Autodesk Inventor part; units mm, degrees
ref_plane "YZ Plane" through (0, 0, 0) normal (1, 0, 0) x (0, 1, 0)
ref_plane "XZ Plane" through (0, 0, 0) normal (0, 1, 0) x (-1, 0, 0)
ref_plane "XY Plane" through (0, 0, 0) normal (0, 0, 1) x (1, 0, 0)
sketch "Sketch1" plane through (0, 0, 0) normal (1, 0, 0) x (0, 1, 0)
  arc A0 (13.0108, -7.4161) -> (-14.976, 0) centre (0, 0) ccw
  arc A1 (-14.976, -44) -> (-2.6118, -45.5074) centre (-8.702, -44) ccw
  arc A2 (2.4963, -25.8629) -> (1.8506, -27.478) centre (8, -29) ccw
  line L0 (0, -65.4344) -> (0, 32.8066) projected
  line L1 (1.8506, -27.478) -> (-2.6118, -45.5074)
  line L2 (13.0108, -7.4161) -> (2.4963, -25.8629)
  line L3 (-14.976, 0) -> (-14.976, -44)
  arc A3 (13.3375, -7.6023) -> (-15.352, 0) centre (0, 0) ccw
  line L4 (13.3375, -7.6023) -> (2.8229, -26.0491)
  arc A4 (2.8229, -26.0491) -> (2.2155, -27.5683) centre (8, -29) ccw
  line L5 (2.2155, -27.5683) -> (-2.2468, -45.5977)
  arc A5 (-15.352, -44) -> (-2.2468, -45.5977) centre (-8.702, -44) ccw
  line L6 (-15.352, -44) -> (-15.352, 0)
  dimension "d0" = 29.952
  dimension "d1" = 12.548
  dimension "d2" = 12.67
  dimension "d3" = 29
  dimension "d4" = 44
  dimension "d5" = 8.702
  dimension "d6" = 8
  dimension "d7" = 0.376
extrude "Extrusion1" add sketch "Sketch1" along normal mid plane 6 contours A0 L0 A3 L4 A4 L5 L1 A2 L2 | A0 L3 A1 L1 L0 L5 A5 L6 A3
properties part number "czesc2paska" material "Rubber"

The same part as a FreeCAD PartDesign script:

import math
import FreeCAD as App
import Part
import Sketcher

V = App.Vector

doc = App.newDocument("Part")
body = doc.addObject("PartDesign::Body", "Body")

sketch1 = body.newObject("Sketcher::SketchObject", "Sketch")
sketch1.AttachmentSupport = (doc.getObject("YZ_Plane"), [""])
sketch1.MapMode = "FlatFace"
sketch1.addGeometry([
    Part.ArcOfCircle(Part.Circle(V(0, 0, 0), V(0, 0, 1), 15.351999), math.radians(-29.682897), math.radians(180)),
    Part.LineSegment(V(-15.352, 0, 0), V(-15.352, -44, 0)),
    Part.ArcOfCircle(Part.Circle(V(-8.702, -44, 0), V(0, 0, 1), 6.65), math.radians(180), math.radians(346.098331)),
    Part.LineSegment(V(-2.2468, -45.5977, 0), V(2.2155, -27.5683, 0)),
    Part.ArcOfCircle(Part.Circle(V(8, -29, 0), V(0, 0, 1), 5.959041), math.radians(150.317252), math.radians(166.098311)),
    Part.LineSegment(V(2.8229, -26.0491, 0), V(13.3375, -7.6023, 0)),
    Part.LineSegment(V(13.0108, -7.4161, 0), V(2.4963, -25.8629, 0)),
    Part.ArcOfCircle(Part.Circle(V(7.998097, -28.999083, 0), V(0, 0, 1), 6.332884), math.radians(150.315616), math.radians(166.102363)),
    Part.LineSegment(V(1.8506, -27.478, 0), V(-2.6118, -45.5074, 0)),
    Part.ArcOfCircle(Part.Circle(V(-8.702, -44, 0), V(0, 0, 1), 6.274), math.radians(180), math.radians(346.09798)),
    Part.LineSegment(V(-14.976, -44, 0), V(-14.976, 0, 0)),
    Part.ArcOfCircle(Part.Circle(V(0, 0, 0), V(0, 0, 1), 14.975963), math.radians(-29.682954), math.radians(180)),
], False)
sketch1.addConstraint([
    Sketcher.Constraint("Coincident", 0, 2, 1, 1),
    Sketcher.Constraint("Coincident", 1, 2, 2, 1),
    Sketcher.Constraint("Coincident", 2, 2, 3, 1),
    Sketcher.Constraint("Coincident", 3, 2, 4, 2),
    Sketcher.Constraint("Coincident", 4, 1, 5, 1),
    Sketcher.Constraint("Coincident", 5, 2, 0, 1),
    Sketcher.Constraint("Coincident", 6, 2, 7, 1),
    Sketcher.Constraint("Coincident", 7, 2, 8, 1),
    Sketcher.Constraint("Coincident", 8, 2, 9, 2),
    Sketcher.Constraint("Coincident", 9, 1, 10, 1),
    Sketcher.Constraint("Coincident", 10, 2, 11, 2),
    Sketcher.Constraint("Coincident", 11, 1, 6, 1),
    Sketcher.Constraint("Vertical", 1),
    Sketcher.Constraint("Vertical", 10),
    Sketcher.Constraint("Coincident", 0, 3, -1, 1),
    Sketcher.Constraint("Coincident", 11, 3, -1, 1),
    Sketcher.Constraint("Coincident", 9, 3, 2, 3),
    Sketcher.Constraint("PointOnObject", 0, 2, -1),
    Sketcher.Constraint("PointOnObject", 10, 2, -1),
    Sketcher.Constraint("DistanceY", 1, 2, 1, 1, 44.0),
    Sketcher.Constraint("DistanceY", 10, 1, 10, 2, 44.0),
    Sketcher.Constraint("DistanceY", 2, 3, -1, 1, 44.0),
    Sketcher.Constraint("DistanceX", -1, 1, 4, 3, 8.0),
    Sketcher.Constraint("DistanceY", 4, 3, -1, 1, 29.0),
    Sketcher.Constraint("Radius", 9, 6.274),
    Sketcher.Constraint("Radius", 11, 14.976),
    Sketcher.Constraint("Radius", 2, 6.65),
    Sketcher.Constraint("Radius", 4, 5.959),
    Sketcher.Constraint("Radius", 7, 6.333),
    Sketcher.Constraint("DistanceX", 2, 3, 7, 3, 16.7),
    Sketcher.Constraint("DistanceY", 7, 3, 4, 1, 2.95),
    Sketcher.Constraint("Distance", 5, 21.233),
    Sketcher.Constraint("Distance", 6, 21.233),
    Sketcher.Constraint("DistanceY", 7, 3, -1, 1, 28.999),
    Sketcher.Constraint("DistanceY", 6, 2, -1, 1, 25.863),
    Sketcher.Constraint("DistanceY", 7, 2, -1, 1, 27.478),
    Sketcher.Constraint("DistanceX", 2, 2, 6, 2, 4.743),
    Sketcher.Constraint("DistanceX", 7, 2, 3, 2, 0.365),
    Sketcher.Constraint("DistanceX", 8, 2, 2, 2, 0.365),
])
pad1 = body.newObject("PartDesign::Pad", "Pad")
pad1.Profile = sketch1
pad1.Length = 6
pad1.Midplane = True

doc.recompute()
